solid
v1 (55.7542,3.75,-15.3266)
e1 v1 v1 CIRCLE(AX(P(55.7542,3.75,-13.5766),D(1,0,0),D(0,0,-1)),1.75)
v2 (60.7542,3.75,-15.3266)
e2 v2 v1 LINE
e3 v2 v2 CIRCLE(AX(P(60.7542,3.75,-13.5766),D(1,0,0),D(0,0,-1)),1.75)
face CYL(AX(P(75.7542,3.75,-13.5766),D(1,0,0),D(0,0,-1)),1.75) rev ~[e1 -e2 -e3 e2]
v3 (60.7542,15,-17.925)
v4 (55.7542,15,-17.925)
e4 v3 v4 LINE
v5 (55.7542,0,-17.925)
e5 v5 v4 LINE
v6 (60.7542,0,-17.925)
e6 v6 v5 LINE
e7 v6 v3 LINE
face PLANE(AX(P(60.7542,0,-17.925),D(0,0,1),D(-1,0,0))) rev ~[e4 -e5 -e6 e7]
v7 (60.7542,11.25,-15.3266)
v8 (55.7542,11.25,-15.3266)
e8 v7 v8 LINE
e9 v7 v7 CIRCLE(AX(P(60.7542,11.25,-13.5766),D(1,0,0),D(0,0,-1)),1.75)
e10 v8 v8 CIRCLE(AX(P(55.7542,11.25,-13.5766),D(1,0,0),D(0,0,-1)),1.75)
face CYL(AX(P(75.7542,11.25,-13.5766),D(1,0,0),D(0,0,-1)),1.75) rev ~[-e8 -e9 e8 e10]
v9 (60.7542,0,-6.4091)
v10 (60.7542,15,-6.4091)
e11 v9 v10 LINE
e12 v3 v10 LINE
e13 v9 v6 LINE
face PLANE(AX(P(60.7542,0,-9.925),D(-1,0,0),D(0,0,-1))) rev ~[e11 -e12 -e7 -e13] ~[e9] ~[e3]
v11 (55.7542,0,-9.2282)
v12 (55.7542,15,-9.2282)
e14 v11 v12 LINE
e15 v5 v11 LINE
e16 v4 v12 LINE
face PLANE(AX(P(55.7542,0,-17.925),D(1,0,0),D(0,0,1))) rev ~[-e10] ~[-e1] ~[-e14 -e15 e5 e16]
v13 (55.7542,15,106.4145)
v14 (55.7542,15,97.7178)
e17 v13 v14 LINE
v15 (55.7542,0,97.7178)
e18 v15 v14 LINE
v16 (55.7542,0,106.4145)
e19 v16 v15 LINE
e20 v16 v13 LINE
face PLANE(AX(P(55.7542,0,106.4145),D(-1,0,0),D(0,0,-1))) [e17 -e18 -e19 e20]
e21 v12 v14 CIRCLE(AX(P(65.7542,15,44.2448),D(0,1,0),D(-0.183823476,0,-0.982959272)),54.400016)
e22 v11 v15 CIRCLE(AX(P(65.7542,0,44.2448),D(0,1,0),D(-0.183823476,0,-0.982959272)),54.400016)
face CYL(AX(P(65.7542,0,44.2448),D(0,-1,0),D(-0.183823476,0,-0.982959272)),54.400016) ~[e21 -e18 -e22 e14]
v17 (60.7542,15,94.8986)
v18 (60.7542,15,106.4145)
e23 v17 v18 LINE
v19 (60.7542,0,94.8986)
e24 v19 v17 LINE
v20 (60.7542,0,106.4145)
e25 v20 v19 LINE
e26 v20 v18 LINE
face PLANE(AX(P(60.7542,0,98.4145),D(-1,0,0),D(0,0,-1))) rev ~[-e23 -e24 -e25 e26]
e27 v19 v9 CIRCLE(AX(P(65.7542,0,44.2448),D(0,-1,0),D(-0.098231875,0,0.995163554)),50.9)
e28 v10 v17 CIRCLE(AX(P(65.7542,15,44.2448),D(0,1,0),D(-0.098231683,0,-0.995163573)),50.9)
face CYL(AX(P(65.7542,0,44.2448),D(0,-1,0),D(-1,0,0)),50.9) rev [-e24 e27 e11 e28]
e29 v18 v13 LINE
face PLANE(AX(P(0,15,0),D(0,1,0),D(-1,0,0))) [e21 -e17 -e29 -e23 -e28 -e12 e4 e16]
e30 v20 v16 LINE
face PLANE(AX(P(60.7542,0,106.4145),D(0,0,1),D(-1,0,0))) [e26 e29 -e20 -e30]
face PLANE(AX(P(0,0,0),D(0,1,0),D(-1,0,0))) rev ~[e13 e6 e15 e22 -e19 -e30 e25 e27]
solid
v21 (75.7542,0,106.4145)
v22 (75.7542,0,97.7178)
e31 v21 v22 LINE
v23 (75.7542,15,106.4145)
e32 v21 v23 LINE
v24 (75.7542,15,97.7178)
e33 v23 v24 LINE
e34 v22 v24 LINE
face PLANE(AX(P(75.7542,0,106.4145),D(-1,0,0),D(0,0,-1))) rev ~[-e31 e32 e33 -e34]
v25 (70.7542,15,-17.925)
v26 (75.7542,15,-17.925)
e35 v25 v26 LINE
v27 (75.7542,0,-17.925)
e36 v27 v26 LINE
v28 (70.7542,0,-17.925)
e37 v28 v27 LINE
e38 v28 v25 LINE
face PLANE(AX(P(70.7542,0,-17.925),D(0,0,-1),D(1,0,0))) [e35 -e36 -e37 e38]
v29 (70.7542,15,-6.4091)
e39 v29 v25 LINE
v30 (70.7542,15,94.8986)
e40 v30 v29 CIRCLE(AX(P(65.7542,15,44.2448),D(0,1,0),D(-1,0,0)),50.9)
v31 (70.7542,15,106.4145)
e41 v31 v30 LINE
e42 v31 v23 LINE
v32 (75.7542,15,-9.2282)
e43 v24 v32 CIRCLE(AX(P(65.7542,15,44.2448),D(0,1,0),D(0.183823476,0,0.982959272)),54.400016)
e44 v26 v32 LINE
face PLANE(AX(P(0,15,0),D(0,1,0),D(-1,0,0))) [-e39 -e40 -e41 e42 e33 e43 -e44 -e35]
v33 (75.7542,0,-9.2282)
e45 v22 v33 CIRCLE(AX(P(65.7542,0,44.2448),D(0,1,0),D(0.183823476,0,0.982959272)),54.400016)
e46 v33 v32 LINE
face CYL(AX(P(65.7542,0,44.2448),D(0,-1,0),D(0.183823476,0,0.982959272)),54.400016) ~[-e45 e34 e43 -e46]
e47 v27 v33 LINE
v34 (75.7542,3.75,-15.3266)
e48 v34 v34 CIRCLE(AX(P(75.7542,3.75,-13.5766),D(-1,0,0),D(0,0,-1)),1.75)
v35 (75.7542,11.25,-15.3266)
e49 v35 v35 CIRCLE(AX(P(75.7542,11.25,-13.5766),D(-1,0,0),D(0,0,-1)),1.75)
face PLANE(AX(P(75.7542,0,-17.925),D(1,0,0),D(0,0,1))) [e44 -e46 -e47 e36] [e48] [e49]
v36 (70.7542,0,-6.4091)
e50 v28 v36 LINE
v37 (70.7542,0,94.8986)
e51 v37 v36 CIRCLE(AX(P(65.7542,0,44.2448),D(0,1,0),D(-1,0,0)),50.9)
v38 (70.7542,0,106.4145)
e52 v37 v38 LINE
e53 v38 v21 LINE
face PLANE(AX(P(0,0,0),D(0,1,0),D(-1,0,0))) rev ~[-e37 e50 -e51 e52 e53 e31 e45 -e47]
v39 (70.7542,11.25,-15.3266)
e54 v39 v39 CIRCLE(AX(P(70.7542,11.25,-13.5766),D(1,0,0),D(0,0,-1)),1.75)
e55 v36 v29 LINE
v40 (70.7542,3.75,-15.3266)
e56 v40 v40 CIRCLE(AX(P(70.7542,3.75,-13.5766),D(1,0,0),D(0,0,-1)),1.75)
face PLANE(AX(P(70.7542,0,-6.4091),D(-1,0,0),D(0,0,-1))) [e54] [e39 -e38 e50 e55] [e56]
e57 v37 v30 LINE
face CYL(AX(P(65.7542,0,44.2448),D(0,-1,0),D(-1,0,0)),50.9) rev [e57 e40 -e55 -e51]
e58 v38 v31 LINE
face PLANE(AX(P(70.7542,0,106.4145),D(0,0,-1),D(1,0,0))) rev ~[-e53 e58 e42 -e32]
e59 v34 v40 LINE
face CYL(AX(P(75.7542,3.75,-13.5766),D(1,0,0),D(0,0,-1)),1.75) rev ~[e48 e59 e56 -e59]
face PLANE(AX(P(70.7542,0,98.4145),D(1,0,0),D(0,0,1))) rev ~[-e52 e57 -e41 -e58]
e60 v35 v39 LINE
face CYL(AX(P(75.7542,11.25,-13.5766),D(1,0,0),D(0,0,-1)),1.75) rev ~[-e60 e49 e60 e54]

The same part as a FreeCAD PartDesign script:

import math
import FreeCAD as App
import Part
import Sketcher

doc = App.newDocument("Part")
params = doc.addObject("Spreadsheet::Sheet", "Params")
for row, (alias, value) in enumerate([
    ("sketch1_width", "5 mm"),
    ("sketch1_radius", "50.9 mm"),
    ("sketch1_radius2", "54.4 mm"),
    ("pad1_length", "15 mm"),
    ("sketch2_diameter", "3.5 mm"),
], start=1):
    params.set(f"A{row}", alias)
    params.set(f"B{row}", "=" + value)
    params.setAlias(f"B{row}", alias)

body = doc.addObject("PartDesign::Body", "Body")
body.AllowCompound = True

# Sketch on XZ plane
sketch1 = body.newObject("Sketcher::SketchObject", "Sketch")
sketch1.AttachmentSupport = (doc.getObject("XZ_Plane"), [""])
sketch1.MapMode = "FlatFace"
sketch1.addGeometry(Part.LineSegment(App.Vector(61, 106, 0), App.Vector(61, 95, 0)), False)
sketch1.addGeometry(Part.ArcOfCircle(Part.Circle(App.Vector(66, 44, 0), App.Vector(0, 0, 1), 51), math.radians(96), math.radians(264)), False)
sketch1.addGeometry(Part.LineSegment(App.Vector(61, -6, 0), App.Vector(61, -18, 0)), False)
sketch1.addGeometry(Part.LineSegment(App.Vector(61, -18, 0), App.Vector(56, -18, 0)), False)
sketch1.addGeometry(Part.LineSegment(App.Vector(56, -18, 0), App.Vector(56, -9, 0)), False)
sketch1.addGeometry(Part.ArcOfCircle(Part.Circle(App.Vector(66, 44, 0), App.Vector(0, 0, 1), 54), math.radians(101), math.radians(259)), False)
sketch1.addGeometry(Part.LineSegment(App.Vector(56, 98, 0), App.Vector(56, 106, 0)), False)
sketch1.addGeometry(Part.LineSegment(App.Vector(56, 106, 0), App.Vector(61, 106, 0)), False)
sketch1.addGeometry(Part.ArcOfCircle(Part.Circle(App.Vector(66, 44, 0), App.Vector(0, 0, 1), 51), math.radians(-84), math.radians(84)), False)
sketch1.addGeometry(Part.LineSegment(App.Vector(71, 95, 0), App.Vector(71, 106, 0)), False)
sketch1.addGeometry(Part.LineSegment(App.Vector(71, 106, 0), App.Vector(76, 106, 0)), False)
sketch1.addGeometry(Part.LineSegment(App.Vector(76, 106, 0), App.Vector(76, 98, 0)), False)
sketch1.addGeometry(Part.ArcOfCircle(Part.Circle(App.Vector(66, 44, 0), App.Vector(0, 0, 1), 54), math.radians(-79), math.radians(79)), False)
sketch1.addGeometry(Part.LineSegment(App.Vector(76, -9, 0), App.Vector(76, -18, 0)), False)
sketch1.addGeometry(Part.LineSegment(App.Vector(76, -18, 0), App.Vector(71, -18, 0)), False)
sketch1.addGeometry(Part.LineSegment(App.Vector(71, -18, 0), App.Vector(71, -6, 0)), False)
sketch1.addConstraint(Sketcher.Constraint("Coincident", 0, 2, 1, 1))
sketch1.addConstraint(Sketcher.Constraint("Coincident", 1, 2, 2, 1))
sketch1.addConstraint(Sketcher.Constraint("Coincident", 2, 2, 3, 1))
sketch1.addConstraint(Sketcher.Constraint("Coincident", 3, 2, 4, 1))
sketch1.addConstraint(Sketcher.Constraint("Coincident", 4, 2, 5, 2))
sketch1.addConstraint(Sketcher.Constraint("Coincident", 5, 1, 6, 1))
sketch1.addConstraint(Sketcher.Constraint("Coincident", 6, 2, 7, 1))
sketch1.addConstraint(Sketcher.Constraint("Coincident", 7, 2, 0, 1))
sketch1.addConstraint(Sketcher.Constraint("Coincident", 8, 2, 9, 1))
sketch1.addConstraint(Sketcher.Constraint("Coincident", 9, 2, 10, 1))
sketch1.addConstraint(Sketcher.Constraint("Coincident", 10, 2, 11, 1))
sketch1.addConstraint(Sketcher.Constraint("Coincident", 11, 2, 12, 2))
sketch1.addConstraint(Sketcher.Constraint("Coincident", 12, 1, 13, 1))
sketch1.addConstraint(Sketcher.Constraint("Coincident", 13, 2, 14, 1))
sketch1.addConstraint(Sketcher.Constraint("Coincident", 14, 2, 15, 1))
sketch1.addConstraint(Sketcher.Constraint("Coincident", 15, 2, 8, 1))
sketch1.addConstraint(Sketcher.Constraint("Vertical", 0))
sketch1.addConstraint(Sketcher.Constraint("Vertical", 2))
sketch1.addConstraint(Sketcher.Constraint("Horizontal", 3))
sketch1.addConstraint(Sketcher.Constraint("Vertical", 4))
sketch1.addConstraint(Sketcher.Constraint("Vertical", 6))
sketch1.addConstraint(Sketcher.Constraint("Horizontal", 7))
sketch1.addConstraint(Sketcher.Constraint("Vertical", 9))
sketch1.addConstraint(Sketcher.Constraint("Horizontal", 10))
sketch1.addConstraint(Sketcher.Constraint("Vertical", 11))
sketch1.addConstraint(Sketcher.Constraint("Vertical", 13))
sketch1.addConstraint(Sketcher.Constraint("Horizontal", 14))
sketch1.addConstraint(Sketcher.Constraint("Vertical", 15))
sketch1.addConstraint(Sketcher.Constraint("Coincident", 5, 3, 1, 3))
sketch1.addConstraint(Sketcher.Constraint("Coincident", 8, 3, 1, 3))
sketch1.addConstraint(Sketcher.Constraint("Coincident", 12, 3, 1, 3))
sketch1.addConstraint(Sketcher.Constraint("Equal", 1, 8))
sketch1.addConstraint(Sketcher.Constraint("Equal", 5, 12))
sketch1.addConstraint(Sketcher.Constraint("Horizontal", 0, 2, 8, 2))
sketch1.addConstraint(Sketcher.Constraint("Horizontal", 7, 2, 9, 2))
sketch1.addConstraint(Sketcher.Constraint("Horizontal", 5, 1, 11, 2))
sketch1.addConstraint(Sketcher.Constraint("Horizontal", 4, 2, 12, 1))
sketch1.addConstraint(Sketcher.Constraint("Horizontal", 3, 2, 13, 2))
sketch1.addConstraint(Sketcher.Constraint("Horizontal", 1, 2, 15, 2))
sketch1.addConstraint(Sketcher.Constraint("Vertical", 0, 2, 1, 2))
sketch1.addConstraint(Sketcher.Constraint("Vertical", 4, 2, 5, 1))
sketch1.addConstraint(Sketcher.Constraint("Equal", 0, 2))
sketch1.addConstraint(Sketcher.Constraint("DistanceX", 3, 2, 3, 1, 5.0))
sketch1.addConstraint(Sketcher.Constraint("DistanceX", 0, 2, 1, 3, 5.0))
sketch1.addConstraint(Sketcher.Constraint("Radius", 1, 50.9))
sketch1.addConstraint(Sketcher.Constraint("Radius", 5, 54.4))
sketch1.addConstraint(Sketcher.Constraint("DistanceY", 0, 2, 0, 1, 11.516))
sketch1.addConstraint(Sketcher.Constraint("DistanceY", 1, 2, -1, 1, 6.409))
sketch1.addConstraint(Sketcher.Constraint("DistanceX", -1, 1, 1, 3, 65.7542))
sketch1.setExpression("Constraints[42]", "Params.sketch1_width")
sketch1.setExpression("Constraints[44]", "Params.sketch1_radius")
sketch1.setExpression("Constraints[45]", "Params.sketch1_radius2")
pad1 = body.newObject("PartDesign::Pad", "Pad")
pad1.Profile = sketch1
pad1.setExpression("Length", "Params.pad1_length")
pad1.Reversed = True

# Sketch on YZ plane
sketch2 = body.newObject("Sketcher::SketchObject", "Sketch001")
sketch2.AttachmentSupport = (doc.getObject("YZ_Plane"), [""])
sketch2.MapMode = "FlatFace"
sketch2.AttachmentOffset = App.Placement(App.Vector(0, 0, 75.7542), App.Rotation())
sketch2.addGeometry(Part.Circle(App.Vector(11.2, -13.6, 0), App.Vector(0, 0, 1), 1.8), False)
sketch2.addGeometry(Part.Circle(App.Vector(3.8, -13.6, 0), App.Vector(0, 0, 1), 1.8), False)
sketch2.addConstraint(Sketcher.Constraint("Equal", 0, 1))
sketch2.addConstraint(Sketcher.Constraint("Horizontal", 0, 3, 1, 3))
sketch2.addConstraint(Sketcher.Constraint("Diameter", 0, 3.5))
sketch2.addConstraint(Sketcher.Constraint("DistanceX", 1, 3, 0, 3, 7.5))
sketch2.addConstraint(Sketcher.Constraint("DistanceX", -1, 1, 0, 3, 11.25))
sketch2.addConstraint(Sketcher.Constraint("DistanceY", 0, 3, -1, 1, 13.5766))
sketch2.setExpression("Constraints[2]", "Params.sketch2_diameter")
pocket1 = body.newObject("PartDesign::Pocket", "Pocket")
pocket1.Profile = sketch2
pocket1.Type = "ThroughAll"

doc.recompute()
